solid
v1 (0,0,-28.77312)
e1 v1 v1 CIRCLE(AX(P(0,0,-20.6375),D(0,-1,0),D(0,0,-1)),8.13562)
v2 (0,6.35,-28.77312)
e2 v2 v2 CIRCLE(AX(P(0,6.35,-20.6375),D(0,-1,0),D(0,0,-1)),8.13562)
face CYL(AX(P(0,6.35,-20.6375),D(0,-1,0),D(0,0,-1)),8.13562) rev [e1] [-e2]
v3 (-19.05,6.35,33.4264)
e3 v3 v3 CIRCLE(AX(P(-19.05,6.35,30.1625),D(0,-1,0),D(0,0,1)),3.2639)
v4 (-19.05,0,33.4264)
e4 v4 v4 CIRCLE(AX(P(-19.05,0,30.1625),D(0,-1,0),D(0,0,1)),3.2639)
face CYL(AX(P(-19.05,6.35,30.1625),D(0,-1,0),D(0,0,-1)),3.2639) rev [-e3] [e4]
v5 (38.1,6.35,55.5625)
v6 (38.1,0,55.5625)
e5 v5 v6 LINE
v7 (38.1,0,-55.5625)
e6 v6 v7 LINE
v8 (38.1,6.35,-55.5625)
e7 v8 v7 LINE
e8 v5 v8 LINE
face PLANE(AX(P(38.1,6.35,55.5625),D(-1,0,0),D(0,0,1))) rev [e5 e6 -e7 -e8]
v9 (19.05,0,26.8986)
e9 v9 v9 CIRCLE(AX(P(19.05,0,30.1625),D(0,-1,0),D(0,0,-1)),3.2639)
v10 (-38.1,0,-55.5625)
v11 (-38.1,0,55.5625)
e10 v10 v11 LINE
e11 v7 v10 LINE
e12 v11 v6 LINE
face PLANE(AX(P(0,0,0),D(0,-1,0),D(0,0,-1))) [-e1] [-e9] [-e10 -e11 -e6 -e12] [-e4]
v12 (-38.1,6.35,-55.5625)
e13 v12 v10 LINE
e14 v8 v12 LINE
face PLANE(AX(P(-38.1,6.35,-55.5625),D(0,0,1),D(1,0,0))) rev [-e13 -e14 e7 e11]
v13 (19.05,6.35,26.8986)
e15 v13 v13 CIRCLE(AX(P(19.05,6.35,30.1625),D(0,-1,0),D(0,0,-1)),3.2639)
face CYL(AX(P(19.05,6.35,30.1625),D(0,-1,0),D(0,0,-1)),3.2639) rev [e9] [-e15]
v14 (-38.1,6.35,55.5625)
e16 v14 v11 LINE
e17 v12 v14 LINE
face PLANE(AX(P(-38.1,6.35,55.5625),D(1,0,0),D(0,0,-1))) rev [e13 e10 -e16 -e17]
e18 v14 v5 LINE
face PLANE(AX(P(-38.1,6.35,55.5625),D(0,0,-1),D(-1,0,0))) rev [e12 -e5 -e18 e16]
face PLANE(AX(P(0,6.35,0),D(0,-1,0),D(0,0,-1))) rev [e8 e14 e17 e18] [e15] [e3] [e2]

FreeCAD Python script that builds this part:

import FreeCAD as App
import Part
import Sketcher
Q = App.Units.Quantity

doc = App.newDocument("Part")
body = doc.addObject("PartDesign::Body", "Body")

# Sketch on XZ plane
sketch1 = body.newObject("Sketcher::SketchObject", "Sketch")
sketch1.AttachmentSupport = (doc.getObject("XZ_Plane"), [""])
sketch1.MapMode = "FlatFace"
sketch1.addGeometry(Part.LineSegment(App.Vector(-38.1, -55.5625, 0), App.Vector(-38.1, 55.5625, 0)), False)
sketch1.addGeometry(Part.LineSegment(App.Vector(-38.1, 55.5625, 0), App.Vector(38.1, 55.5625, 0)), False)
sketch1.addGeometry(Part.LineSegment(App.Vector(38.1, 55.5625, 0), App.Vector(38.1, -55.5625, 0)), False)
sketch1.addGeometry(Part.LineSegment(App.Vector(38.1, -55.5625, 0), App.Vector(-38.1, -55.5625, 0)), False)
sketch1.addConstraint(Sketcher.Constraint("Coincident", 0, 2, 1, 1))
sketch1.addConstraint(Sketcher.Constraint("Coincident", 1, 2, 2, 1))
sketch1.addConstraint(Sketcher.Constraint("Coincident", 2, 2, 3, 1))
sketch1.addConstraint(Sketcher.Constraint("Coincident", 3, 2, 0, 1))
sketch1.addConstraint(Sketcher.Constraint("Vertical", 0))
sketch1.addConstraint(Sketcher.Constraint("Horizontal", 1))
sketch1.addConstraint(Sketcher.Constraint("Vertical", 2))
sketch1.addConstraint(Sketcher.Constraint("Horizontal", 3))
sketch1.addConstraint(Sketcher.Constraint("Symmetric", 0, 2, 2, 2, -1, 1))
sketch1.addConstraint(Sketcher.Constraint("DistanceX", 1, 1, 1, 2, Q("3 in")))
sketch1.addConstraint(Sketcher.Constraint("DistanceY", 0, 1, 0, 2, Q("4.375 in")))
pad1 = body.newObject("PartDesign::Pad", "Pad")
pad1.Profile = sketch1
pad1.Length = Q("0.25 in")
pad1.Reversed = True

# Sketch on XZ plane
sketch2 = body.newObject("Sketcher::SketchObject", "Sketch001")
sketch2.AttachmentSupport = (doc.getObject("XZ_Plane"), [""])
sketch2.MapMode = "FlatFace"
sketch2.addGeometry(Part.Circle(App.Vector(19.05, 30.1625, 0), App.Vector(0, 0, 1), 3.2639), False)
sketch2.addGeometry(Part.Circle(App.Vector(-19.05, 30.1625, 0), App.Vector(0, 0, 1), 3.2639), False)
sketch2.addGeometry(Part.Circle(App.Vector(0, -20.6375, 0), App.Vector(0, 0, 1), 8.13562), False)
sketch2.addConstraint(Sketcher.Constraint("Equal", 0, 1))
sketch2.addConstraint(Sketcher.Constraint("Symmetric", 0, 3, 1, 3, -2))
sketch2.addConstraint(Sketcher.Constraint("PointOnObject", 2, 3, -2))
sketch2.addConstraint(Sketcher.Constraint("Diameter", 0, Q("0.257 in")))
sketch2.addConstraint(Sketcher.Constraint("DistanceY", 2, 3, 0, 3, Q("2 in")))
sketch2.addConstraint(Sketcher.Constraint("Diameter", 2, Q("0.6406 in")))
sketch2.addConstraint(Sketcher.Constraint("DistanceX", 1, 3, 0, 3, Q("1.5 in")))
sketch2.addConstraint(Sketcher.Constraint("DistanceY", -1, 1, 0, 3, Q("1.1875 in")))
pocket1 = body.newObject("PartDesign::Pocket", "Pocket")
pocket1.Profile = sketch2
pocket1.Type = "ThroughAll"

doc.recompute()
